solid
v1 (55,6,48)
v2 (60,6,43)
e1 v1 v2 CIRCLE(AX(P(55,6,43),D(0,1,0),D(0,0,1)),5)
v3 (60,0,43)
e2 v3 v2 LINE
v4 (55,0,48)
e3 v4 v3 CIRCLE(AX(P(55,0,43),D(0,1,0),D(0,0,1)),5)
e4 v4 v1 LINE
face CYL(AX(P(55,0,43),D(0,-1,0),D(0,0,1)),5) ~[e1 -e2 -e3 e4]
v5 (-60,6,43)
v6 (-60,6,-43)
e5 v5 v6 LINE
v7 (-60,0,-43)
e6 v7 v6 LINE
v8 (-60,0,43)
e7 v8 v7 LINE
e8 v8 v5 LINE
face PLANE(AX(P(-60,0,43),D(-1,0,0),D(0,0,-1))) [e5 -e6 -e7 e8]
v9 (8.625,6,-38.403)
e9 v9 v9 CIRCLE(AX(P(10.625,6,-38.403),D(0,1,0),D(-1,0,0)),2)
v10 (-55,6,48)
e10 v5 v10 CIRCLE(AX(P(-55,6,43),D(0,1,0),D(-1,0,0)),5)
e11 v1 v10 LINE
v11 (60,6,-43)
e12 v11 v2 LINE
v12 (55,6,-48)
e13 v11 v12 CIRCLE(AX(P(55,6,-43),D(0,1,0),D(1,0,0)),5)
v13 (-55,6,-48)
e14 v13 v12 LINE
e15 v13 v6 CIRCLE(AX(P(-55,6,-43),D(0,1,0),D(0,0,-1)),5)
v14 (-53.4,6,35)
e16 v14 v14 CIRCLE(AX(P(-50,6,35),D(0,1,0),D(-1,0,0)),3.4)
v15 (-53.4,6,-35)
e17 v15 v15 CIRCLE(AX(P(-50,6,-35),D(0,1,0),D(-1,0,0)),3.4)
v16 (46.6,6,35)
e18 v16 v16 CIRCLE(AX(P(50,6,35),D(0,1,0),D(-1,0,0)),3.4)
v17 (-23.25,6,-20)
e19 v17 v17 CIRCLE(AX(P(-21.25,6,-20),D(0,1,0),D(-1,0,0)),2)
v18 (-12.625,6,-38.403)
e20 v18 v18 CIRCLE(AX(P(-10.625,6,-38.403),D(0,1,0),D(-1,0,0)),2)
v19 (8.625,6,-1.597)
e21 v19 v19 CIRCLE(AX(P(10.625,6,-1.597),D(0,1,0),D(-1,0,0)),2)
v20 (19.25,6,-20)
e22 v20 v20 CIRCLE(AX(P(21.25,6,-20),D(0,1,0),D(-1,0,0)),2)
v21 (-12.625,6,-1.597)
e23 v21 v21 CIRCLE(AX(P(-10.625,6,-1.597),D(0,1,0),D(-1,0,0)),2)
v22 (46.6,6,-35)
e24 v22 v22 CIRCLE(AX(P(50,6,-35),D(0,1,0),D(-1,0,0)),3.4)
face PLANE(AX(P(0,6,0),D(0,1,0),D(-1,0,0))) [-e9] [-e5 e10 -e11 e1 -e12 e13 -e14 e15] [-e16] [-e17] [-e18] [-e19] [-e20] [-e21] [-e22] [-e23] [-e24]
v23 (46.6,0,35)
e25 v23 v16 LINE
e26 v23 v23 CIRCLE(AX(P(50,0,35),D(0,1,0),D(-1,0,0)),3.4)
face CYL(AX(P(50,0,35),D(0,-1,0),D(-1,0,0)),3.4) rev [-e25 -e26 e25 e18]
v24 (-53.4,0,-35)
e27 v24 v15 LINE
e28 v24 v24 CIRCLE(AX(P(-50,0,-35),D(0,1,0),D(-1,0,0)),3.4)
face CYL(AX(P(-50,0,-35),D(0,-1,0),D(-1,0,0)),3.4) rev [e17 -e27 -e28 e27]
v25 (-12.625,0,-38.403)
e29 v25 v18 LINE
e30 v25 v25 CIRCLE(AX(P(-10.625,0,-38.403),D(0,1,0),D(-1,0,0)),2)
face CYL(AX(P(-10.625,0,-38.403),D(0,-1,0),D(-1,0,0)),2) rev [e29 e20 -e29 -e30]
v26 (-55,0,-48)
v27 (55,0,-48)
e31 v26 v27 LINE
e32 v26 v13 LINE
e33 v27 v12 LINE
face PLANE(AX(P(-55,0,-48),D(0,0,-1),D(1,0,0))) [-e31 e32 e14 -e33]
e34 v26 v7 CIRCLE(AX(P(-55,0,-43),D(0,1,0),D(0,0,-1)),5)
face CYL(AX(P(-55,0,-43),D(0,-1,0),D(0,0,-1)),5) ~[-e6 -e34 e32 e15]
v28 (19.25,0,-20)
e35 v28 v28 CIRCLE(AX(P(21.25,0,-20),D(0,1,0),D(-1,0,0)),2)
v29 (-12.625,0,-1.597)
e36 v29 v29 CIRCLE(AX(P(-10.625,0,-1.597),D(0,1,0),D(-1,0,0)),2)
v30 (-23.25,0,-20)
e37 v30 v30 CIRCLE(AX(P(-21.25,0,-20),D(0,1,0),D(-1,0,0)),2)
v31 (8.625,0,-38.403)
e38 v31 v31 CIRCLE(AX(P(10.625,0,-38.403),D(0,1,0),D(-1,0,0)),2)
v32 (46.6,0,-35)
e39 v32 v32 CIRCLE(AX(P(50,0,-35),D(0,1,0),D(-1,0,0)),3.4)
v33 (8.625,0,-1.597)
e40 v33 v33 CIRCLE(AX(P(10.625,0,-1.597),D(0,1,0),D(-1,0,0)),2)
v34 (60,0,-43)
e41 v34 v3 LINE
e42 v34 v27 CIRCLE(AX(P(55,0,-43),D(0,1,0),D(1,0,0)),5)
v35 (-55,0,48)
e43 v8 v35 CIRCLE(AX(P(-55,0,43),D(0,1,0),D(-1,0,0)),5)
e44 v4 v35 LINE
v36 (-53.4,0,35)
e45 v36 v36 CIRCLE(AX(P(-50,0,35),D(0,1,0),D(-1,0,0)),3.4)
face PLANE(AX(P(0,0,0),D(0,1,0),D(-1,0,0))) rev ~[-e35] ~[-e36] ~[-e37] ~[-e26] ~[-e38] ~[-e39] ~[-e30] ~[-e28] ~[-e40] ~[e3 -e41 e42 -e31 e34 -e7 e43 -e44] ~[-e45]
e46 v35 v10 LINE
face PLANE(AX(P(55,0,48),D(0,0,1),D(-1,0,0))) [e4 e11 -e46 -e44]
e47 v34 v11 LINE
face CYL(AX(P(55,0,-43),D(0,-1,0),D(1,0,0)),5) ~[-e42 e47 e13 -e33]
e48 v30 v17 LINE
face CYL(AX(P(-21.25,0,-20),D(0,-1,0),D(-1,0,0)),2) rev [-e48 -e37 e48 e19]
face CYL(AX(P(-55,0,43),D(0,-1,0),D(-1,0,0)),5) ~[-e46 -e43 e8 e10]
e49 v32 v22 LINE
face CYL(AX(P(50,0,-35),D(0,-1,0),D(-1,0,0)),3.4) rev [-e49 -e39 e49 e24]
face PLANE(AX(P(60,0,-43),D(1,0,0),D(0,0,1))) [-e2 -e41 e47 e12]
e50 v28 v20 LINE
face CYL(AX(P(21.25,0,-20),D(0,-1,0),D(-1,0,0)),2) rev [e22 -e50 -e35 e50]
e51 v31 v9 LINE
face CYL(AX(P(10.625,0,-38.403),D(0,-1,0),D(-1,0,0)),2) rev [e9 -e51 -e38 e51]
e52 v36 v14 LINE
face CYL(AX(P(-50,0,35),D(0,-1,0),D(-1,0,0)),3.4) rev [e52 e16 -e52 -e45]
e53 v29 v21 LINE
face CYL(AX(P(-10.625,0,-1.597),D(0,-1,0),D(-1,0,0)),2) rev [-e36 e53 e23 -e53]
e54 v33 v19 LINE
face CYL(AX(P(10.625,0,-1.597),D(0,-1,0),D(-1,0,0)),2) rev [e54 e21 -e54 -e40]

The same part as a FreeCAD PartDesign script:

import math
import FreeCAD as App
import Part
import Sketcher

doc = App.newDocument("Part")
params = doc.addObject("Spreadsheet::Sheet", "Params")
for row, (alias, value) in enumerate([
    ("sketch1_diameter", "4 mm"),
    ("sketch1_radius", "5 mm"),
    ("sketch1_diameter2", "6.8 mm"),
    ("sketch1_width", "110 mm"),
    ("sketch1_height", "86 mm"),
    ("pad1_length", "6 mm"),
], start=1):
    params.set(f"A{row}", alias)
    params.set(f"B{row}", "=" + value)
    params.setAlias(f"B{row}", alias)

body = doc.addObject("PartDesign::Body", "Body")

sketch1 = doc.addObject("Sketcher::SketchObject", "Sketch")
body.addObject(sketch1)
sketch1.AttachmentSupport = (doc.XZ_Plane, [""])
sketch1.MapMode = "FlatFace"
sketch1.addGeometry([
    Part.LineSegment(App.Vector(55, -48, 0), App.Vector(-55, -48, 0)),
    Part.ArcOfCircle(Part.Circle(App.Vector(-55, -43, 0), App.Vector(0, 0, 1), 5), math.radians(180), math.radians(270)),
    Part.LineSegment(App.Vector(-60, -43, 0), App.Vector(-60, 43, 0)),
    Part.ArcOfCircle(Part.Circle(App.Vector(-55, 43, 0), App.Vector(0, 0, 1), 5), math.radians(90), math.radians(180)),
    Part.LineSegment(App.Vector(-55, 48, 0), App.Vector(55, 48, 0)),
    Part.ArcOfCircle(Part.Circle(App.Vector(55, 43, 0), App.Vector(0, 0, 1), 5), math.radians(0), math.radians(90)),
    Part.LineSegment(App.Vector(60, 43, 0), App.Vector(60, -43, 0)),
    Part.ArcOfCircle(Part.Circle(App.Vector(55, -43, 0), App.Vector(0, 0, 1), 5), math.radians(-90), math.radians(0)),
    Part.Circle(App.Vector(50, -35, 0), App.Vector(0, 0, 1), 3.4),
    Part.Circle(App.Vector(10.6, -38.4, 0), App.Vector(0, 0, 1), 2),
    Part.Circle(App.Vector(21.2, -20, 0), App.Vector(0, 0, 1), 2),
    Part.Circle(App.Vector(10.6, -1.6, 0), App.Vector(0, 0, 1), 2),
    Part.Circle(App.Vector(-10.6, -38.4, 0), App.Vector(0, 0, 1), 2),
    Part.Circle(App.Vector(-50, -35, 0), App.Vector(0, 0, 1), 3.4),
    Part.Circle(App.Vector(-21.2, -20, 0), App.Vector(0, 0, 1), 2),
    Part.Circle(App.Vector(-10.6, -1.6, 0), App.Vector(0, 0, 1), 2),
    Part.Circle(App.Vector(50, 35, 0), App.Vector(0, 0, 1), 3.4),
    Part.Circle(App.Vector(-50, 35, 0), App.Vector(0, 0, 1), 3.4),
], False)
sketch1.addConstraint([
    Sketcher.Constraint("Tangent", 0, 2, 1, 2),
    Sketcher.Constraint("Tangent", 1, 1, 2, 1),
    Sketcher.Constraint("Tangent", 2, 2, 3, 2),
    Sketcher.Constraint("Tangent", 3, 1, 4, 1),
    Sketcher.Constraint("Tangent", 4, 2, 5, 2),
    Sketcher.Constraint("Tangent", 5, 1, 6, 1),
    Sketcher.Constraint("Tangent", 6, 2, 7, 2),
    Sketcher.Constraint("Tangent", 7, 1, 0, 1),
    Sketcher.Constraint("Horizontal", 0),
    Sketcher.Constraint("Vertical", 2),
    Sketcher.Constraint("Horizontal", 4),
    Sketcher.Constraint("Vertical", 6),
    Sketcher.Constraint("Equal", 1, 3),
    Sketcher.Constraint("Equal", 3, 5),
    Sketcher.Constraint("Equal", 5, 7),
    Sketcher.Constraint("Equal", 9, 10),
    Sketcher.Constraint("Equal", 10, 11),
    Sketcher.Constraint("Equal", 11, 12),
    Sketcher.Constraint("Equal", 8, 13),
    Sketcher.Constraint("Equal", 12, 14),
    Sketcher.Constraint("Equal", 14, 15),
    Sketcher.Constraint("Equal", 13, 16),
    Sketcher.Constraint("Equal", 16, 17),
    Sketcher.Constraint("Symmetric", 1, 3, 5, 3, -1, 1),
    Sketcher.Constraint("Symmetric", 13, 3, 16, 3, -1, 1),
    Sketcher.Constraint("Symmetric", 8, 3, 17, 3, -1, 1),
    Sketcher.Constraint("Symmetric", 9, 3, 12, 3, -2),
    Sketcher.Constraint("Symmetric", 8, 3, 13, 3, -2),
    Sketcher.Constraint("Symmetric", 10, 3, 14, 3, -2),
    Sketcher.Constraint("Symmetric", 11, 3, 15, 3, -2),
    Sketcher.Constraint("Vertical", 9, 3, 11, 3),
    Sketcher.Constraint("Diameter", 9, 4.0),
    Sketcher.Constraint("Radius", 1, 5.0),
    Sketcher.Constraint("Diameter", 8, 6.8),
    Sketcher.Constraint("DistanceX", 8, 3, 7, 3, 5.0),
    Sketcher.Constraint("DistanceY", 8, 3, 16, 3, 70.0),
    Sketcher.Constraint("DistanceX", 0, 2, 0, 1, 110.0),
    Sketcher.Constraint("DistanceY", 2, 1, 2, 2, 86.0),
    Sketcher.Constraint("DistanceY", 10, 3, -1, 1, 20.0),
    Sketcher.Constraint("DistanceX", -1, 1, 10, 3, 21.25),
    Sketcher.Constraint("DistanceX", 12, 3, 9, 3, 21.25),
    Sketcher.Constraint("DistanceY", 9, 3, -1, 1, 38.403),
    Sketcher.Constraint("DistanceY", 11, 3, -1, 1, 1.597),
])
sketch1.setExpression("Constraints[31]", "Params.sketch1_diameter")
sketch1.setExpression("Constraints[32]", "Params.sketch1_radius")
sketch1.setExpression("Constraints[33]", "Params.sketch1_diameter2")
sketch1.setExpression("Constraints[36]", "Params.sketch1_width")
sketch1.setExpression("Constraints[37]", "Params.sketch1_height")
pad1 = doc.addObject("PartDesign::Pad", "Pad")
body.addObject(pad1)
pad1.Profile = sketch1
pad1.setExpression("Length", "Params.pad1_length")
pad1.Reversed = True

doc.recompute()
